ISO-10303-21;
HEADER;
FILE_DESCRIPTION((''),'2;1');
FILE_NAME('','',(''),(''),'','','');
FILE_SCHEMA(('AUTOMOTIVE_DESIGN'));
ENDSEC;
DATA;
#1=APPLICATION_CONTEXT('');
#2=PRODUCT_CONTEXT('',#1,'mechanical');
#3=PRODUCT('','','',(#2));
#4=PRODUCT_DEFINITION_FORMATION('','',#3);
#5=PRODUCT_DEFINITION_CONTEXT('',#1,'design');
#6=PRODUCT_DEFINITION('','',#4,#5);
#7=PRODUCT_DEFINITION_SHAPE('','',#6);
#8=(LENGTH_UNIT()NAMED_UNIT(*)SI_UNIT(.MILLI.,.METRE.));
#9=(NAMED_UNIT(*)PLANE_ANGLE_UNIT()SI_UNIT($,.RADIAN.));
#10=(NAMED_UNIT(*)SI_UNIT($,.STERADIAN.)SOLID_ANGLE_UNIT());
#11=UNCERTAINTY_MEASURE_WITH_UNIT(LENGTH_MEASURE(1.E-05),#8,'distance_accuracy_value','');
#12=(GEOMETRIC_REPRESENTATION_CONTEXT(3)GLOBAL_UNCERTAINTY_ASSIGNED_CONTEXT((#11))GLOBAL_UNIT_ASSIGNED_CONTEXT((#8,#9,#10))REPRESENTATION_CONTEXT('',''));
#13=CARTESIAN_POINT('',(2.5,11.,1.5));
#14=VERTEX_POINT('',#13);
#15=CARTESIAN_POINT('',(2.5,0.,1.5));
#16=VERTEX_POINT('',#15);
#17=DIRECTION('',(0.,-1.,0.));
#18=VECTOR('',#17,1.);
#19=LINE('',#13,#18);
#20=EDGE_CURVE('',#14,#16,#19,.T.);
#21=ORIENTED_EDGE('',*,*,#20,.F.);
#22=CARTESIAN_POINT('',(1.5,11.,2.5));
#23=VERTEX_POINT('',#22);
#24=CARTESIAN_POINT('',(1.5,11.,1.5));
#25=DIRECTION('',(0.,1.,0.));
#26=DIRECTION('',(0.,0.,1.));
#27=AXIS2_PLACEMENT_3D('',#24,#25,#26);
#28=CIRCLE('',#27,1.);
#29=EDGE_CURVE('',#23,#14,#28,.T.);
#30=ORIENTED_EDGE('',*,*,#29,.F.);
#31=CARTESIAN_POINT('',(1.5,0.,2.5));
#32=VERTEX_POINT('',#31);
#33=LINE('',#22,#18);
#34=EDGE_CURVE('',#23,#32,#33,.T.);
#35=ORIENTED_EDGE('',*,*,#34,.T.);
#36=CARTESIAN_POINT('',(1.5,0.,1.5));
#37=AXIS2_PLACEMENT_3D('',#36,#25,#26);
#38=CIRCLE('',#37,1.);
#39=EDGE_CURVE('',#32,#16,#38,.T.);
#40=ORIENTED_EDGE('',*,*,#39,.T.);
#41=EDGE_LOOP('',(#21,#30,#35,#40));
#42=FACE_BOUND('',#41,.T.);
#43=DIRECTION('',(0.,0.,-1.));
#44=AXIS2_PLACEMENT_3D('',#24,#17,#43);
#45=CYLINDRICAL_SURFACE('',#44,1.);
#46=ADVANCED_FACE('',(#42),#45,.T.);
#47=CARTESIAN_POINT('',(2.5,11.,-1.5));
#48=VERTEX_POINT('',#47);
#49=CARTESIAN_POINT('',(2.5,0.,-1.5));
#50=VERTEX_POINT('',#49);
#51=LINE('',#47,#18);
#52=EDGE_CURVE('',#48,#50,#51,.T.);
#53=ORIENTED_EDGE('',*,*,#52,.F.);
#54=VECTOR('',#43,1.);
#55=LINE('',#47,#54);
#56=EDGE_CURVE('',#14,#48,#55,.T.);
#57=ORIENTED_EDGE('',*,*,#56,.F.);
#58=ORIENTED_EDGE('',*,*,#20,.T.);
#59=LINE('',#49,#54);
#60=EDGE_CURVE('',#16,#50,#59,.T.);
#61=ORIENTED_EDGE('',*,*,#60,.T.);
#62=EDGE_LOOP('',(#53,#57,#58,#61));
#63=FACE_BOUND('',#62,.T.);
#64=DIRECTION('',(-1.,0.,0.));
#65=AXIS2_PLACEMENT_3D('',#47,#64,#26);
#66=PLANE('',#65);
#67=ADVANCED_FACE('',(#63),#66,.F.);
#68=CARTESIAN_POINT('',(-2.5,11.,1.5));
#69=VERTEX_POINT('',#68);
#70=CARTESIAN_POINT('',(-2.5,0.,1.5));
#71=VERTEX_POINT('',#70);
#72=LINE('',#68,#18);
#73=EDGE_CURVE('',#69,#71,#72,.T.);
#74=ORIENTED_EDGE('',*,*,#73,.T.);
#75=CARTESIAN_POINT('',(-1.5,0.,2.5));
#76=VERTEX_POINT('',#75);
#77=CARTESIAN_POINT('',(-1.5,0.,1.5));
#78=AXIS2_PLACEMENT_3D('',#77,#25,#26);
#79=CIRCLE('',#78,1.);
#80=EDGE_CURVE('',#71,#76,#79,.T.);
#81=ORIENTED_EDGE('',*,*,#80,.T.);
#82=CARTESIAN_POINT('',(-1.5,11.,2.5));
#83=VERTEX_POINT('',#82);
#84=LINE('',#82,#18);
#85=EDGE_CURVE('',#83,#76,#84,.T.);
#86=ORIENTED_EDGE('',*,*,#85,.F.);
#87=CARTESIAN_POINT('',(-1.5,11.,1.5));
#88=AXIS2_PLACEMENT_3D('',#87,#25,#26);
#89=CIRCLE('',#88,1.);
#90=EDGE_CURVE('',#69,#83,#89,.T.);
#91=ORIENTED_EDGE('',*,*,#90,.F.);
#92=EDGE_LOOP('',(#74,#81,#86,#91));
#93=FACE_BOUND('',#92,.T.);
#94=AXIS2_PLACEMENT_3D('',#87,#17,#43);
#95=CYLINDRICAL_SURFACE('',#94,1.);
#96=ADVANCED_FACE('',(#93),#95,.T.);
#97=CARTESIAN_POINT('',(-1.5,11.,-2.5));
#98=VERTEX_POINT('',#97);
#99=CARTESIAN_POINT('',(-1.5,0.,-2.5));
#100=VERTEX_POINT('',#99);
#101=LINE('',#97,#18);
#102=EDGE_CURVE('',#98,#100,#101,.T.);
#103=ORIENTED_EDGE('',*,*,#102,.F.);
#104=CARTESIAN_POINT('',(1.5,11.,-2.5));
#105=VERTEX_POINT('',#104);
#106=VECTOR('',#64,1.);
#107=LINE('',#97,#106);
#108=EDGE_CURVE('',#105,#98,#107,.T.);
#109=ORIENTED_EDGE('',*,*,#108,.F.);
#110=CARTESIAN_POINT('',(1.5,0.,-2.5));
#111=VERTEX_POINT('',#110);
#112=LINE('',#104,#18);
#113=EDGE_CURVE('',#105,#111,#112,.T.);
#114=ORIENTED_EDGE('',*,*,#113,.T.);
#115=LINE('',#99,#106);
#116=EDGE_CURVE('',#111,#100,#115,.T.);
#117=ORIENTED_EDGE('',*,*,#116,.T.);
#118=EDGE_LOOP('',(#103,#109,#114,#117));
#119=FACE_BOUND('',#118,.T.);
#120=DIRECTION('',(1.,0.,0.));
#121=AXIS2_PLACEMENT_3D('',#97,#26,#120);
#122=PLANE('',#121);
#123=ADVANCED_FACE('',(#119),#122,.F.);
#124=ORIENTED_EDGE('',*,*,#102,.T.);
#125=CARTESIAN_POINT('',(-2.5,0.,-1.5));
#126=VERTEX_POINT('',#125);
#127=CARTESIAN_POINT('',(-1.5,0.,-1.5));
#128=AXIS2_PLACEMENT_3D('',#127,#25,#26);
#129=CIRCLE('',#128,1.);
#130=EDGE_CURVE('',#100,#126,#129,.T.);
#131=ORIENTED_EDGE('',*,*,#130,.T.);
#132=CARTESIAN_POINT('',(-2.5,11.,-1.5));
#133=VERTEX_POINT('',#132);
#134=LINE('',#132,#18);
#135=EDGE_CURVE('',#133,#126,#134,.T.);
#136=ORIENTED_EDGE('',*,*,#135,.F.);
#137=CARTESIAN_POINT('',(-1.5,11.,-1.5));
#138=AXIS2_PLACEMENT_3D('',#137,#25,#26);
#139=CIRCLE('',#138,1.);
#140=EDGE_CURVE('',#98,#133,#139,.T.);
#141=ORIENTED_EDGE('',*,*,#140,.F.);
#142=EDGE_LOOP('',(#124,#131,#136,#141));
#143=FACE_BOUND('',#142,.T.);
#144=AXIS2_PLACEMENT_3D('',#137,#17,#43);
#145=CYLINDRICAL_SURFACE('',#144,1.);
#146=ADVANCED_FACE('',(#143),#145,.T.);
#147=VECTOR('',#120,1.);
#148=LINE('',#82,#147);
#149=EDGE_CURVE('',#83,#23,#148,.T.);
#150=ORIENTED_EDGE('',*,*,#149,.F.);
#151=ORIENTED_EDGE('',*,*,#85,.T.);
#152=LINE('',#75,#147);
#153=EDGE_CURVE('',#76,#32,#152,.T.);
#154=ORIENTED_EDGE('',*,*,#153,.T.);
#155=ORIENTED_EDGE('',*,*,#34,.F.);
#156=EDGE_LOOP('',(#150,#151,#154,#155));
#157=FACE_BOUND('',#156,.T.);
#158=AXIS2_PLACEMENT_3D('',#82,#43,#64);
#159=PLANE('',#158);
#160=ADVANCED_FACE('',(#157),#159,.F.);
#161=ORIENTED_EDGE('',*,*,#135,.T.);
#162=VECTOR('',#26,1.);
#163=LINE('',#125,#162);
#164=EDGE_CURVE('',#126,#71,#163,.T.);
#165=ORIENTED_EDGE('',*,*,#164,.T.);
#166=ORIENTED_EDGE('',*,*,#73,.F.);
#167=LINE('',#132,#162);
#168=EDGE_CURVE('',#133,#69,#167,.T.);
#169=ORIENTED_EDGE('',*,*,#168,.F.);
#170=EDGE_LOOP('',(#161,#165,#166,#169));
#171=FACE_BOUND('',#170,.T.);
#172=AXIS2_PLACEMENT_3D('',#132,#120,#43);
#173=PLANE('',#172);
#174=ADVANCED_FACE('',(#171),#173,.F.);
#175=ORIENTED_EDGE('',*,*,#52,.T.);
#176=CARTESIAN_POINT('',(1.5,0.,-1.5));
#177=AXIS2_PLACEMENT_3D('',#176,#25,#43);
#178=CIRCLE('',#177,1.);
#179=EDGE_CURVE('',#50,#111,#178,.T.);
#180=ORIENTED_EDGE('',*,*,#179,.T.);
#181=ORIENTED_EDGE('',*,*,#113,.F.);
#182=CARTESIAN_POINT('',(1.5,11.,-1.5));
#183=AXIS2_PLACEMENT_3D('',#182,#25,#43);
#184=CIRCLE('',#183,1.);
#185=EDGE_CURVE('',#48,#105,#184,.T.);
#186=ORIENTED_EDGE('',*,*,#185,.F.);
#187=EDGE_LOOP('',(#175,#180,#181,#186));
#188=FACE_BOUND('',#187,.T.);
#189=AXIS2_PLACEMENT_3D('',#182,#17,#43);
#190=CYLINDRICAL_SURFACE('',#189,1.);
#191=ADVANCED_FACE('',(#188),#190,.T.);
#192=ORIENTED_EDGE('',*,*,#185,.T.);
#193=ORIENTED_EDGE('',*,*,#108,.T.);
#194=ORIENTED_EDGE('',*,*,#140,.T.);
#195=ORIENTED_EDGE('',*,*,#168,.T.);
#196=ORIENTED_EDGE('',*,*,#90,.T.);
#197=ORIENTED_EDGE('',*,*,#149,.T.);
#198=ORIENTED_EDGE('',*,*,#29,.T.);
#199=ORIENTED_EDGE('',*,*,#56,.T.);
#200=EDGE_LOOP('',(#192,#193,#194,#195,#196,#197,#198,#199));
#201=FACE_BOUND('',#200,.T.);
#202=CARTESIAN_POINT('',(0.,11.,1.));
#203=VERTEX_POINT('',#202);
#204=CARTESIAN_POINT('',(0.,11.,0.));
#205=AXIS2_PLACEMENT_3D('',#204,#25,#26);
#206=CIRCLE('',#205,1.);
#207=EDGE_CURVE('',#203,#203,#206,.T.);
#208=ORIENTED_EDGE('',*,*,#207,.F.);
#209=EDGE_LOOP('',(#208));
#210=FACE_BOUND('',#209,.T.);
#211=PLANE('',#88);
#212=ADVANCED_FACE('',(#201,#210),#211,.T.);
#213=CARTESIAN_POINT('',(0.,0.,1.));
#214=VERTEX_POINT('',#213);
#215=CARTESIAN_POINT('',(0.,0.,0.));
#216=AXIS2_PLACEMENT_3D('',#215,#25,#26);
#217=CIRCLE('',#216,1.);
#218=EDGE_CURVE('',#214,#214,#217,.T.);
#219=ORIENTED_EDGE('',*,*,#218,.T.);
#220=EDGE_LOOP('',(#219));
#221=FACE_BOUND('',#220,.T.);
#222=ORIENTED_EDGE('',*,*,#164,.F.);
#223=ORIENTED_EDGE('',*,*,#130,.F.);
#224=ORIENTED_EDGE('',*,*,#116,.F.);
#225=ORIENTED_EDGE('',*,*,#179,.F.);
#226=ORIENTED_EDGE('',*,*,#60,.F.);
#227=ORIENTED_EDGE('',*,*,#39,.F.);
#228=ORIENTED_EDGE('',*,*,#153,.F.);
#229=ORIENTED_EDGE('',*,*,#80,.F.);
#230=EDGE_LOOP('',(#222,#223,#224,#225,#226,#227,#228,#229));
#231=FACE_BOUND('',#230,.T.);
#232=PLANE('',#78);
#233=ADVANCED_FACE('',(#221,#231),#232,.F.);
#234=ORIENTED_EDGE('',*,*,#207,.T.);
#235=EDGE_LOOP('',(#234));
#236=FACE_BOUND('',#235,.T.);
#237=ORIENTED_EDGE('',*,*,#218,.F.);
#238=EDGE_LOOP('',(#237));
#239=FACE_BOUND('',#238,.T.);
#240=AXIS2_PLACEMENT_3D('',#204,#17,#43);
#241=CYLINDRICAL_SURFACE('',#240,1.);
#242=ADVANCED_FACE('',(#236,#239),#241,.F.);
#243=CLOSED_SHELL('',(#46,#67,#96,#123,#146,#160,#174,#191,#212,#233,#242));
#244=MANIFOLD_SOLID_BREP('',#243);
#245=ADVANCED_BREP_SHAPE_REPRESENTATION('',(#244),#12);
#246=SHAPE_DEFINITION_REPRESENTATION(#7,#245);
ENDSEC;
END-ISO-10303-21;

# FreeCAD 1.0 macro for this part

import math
import FreeCAD as App
import Part
import Sketcher
from FreeCAD import Vector

doc = App.newDocument("Part")
body = doc.addObject("PartDesign::Body", "Body")

sketch1 = body.newObject("Sketcher::SketchObject", "Sketch")
sketch1.AttachmentSupport = (doc.getObject("XZ_Plane"), [""])
sketch1.MapMode = "FlatFace"
sketch1.addGeometry(Part.LineSegment(Vector(1.5, -2.5, 0), Vector(-1.5, -2.5, 0)), False)
sketch1.addGeometry(Part.ArcOfCircle(Part.Circle(Vector(-1.5, -1.5, 0), Vector(0, 0, 1), 1), math.radians(-180), math.radians(-90)), False)
sketch1.addGeometry(Part.LineSegment(Vector(-2.5, -1.5, 0), Vector(-2.5, 1.5, 0)), False)
sketch1.addGeometry(Part.ArcOfCircle(Part.Circle(Vector(-1.5, 1.5, 0), Vector(0, 0, 1), 1), math.radians(90), math.radians(180)), False)
sketch1.addGeometry(Part.LineSegment(Vector(-1.5, 2.5, 0), Vector(1.5, 2.5, 0)), False)
sketch1.addGeometry(Part.ArcOfCircle(Part.Circle(Vector(1.5, 1.5, 0), Vector(0, 0, 1), 1), math.radians(0), math.radians(90)), False)
sketch1.addGeometry(Part.LineSegment(Vector(2.5, 1.5, 0), Vector(2.5, -1.5, 0)), False)
sketch1.addGeometry(Part.ArcOfCircle(Part.Circle(Vector(1.5, -1.5, 0), Vector(0, 0, 1), 1), math.radians(-90), math.radians(0)), False)
sketch1.addGeometry(Part.Circle(Vector(0, 0, 0), Vector(0, 0, 1), 1), False)
sketch1.addConstraint(Sketcher.Constraint("Tangent", 0, 2, 1, 2))
sketch1.addConstraint(Sketcher.Constraint("Tangent", 1, 1, 2, 1))
sketch1.addConstraint(Sketcher.Constraint("Tangent", 2, 2, 3, 2))
sketch1.addConstraint(Sketcher.Constraint("Tangent", 3, 1, 4, 1))
sketch1.addConstraint(Sketcher.Constraint("Tangent", 4, 2, 5, 2))
sketch1.addConstraint(Sketcher.Constraint("Tangent", 5, 1, 6, 1))
sketch1.addConstraint(Sketcher.Constraint("Tangent", 6, 2, 7, 2))
sketch1.addConstraint(Sketcher.Constraint("Tangent", 7, 1, 0, 1))
sketch1.addConstraint(Sketcher.Constraint("Horizontal", 0))
sketch1.addConstraint(Sketcher.Constraint("Vertical", 2))
sketch1.addConstraint(Sketcher.Constraint("Horizontal", 4))
sketch1.addConstraint(Sketcher.Constraint("Vertical", 6))
sketch1.addConstraint(Sketcher.Constraint("Coincident", 8, 3, -1, 1))
sketch1.addConstraint(Sketcher.Constraint("Equal", 1, 3))
sketch1.addConstraint(Sketcher.Constraint("Equal", 3, 5))
sketch1.addConstraint(Sketcher.Constraint("Equal", 5, 7))
sketch1.addConstraint(Sketcher.Constraint("Equal", 7, 8))
sketch1.addConstraint(Sketcher.Constraint("Symmetric", 1, 3, 5, 3, -1, 1))
sketch1.addConstraint(Sketcher.Constraint("Equal", 4, 2))
sketch1.addConstraint(Sketcher.Constraint("Diameter", 8, 2.0))
sketch1.addConstraint(Sketcher.Constraint("DistanceX", 0, 2, 0, 1, 3.0))
pad1 = body.newObject("PartDesign::Pad", "Pad")
pad1.Profile = sketch1
pad1.Length = 11
pad1.Reversed = True

doc.recompute()
